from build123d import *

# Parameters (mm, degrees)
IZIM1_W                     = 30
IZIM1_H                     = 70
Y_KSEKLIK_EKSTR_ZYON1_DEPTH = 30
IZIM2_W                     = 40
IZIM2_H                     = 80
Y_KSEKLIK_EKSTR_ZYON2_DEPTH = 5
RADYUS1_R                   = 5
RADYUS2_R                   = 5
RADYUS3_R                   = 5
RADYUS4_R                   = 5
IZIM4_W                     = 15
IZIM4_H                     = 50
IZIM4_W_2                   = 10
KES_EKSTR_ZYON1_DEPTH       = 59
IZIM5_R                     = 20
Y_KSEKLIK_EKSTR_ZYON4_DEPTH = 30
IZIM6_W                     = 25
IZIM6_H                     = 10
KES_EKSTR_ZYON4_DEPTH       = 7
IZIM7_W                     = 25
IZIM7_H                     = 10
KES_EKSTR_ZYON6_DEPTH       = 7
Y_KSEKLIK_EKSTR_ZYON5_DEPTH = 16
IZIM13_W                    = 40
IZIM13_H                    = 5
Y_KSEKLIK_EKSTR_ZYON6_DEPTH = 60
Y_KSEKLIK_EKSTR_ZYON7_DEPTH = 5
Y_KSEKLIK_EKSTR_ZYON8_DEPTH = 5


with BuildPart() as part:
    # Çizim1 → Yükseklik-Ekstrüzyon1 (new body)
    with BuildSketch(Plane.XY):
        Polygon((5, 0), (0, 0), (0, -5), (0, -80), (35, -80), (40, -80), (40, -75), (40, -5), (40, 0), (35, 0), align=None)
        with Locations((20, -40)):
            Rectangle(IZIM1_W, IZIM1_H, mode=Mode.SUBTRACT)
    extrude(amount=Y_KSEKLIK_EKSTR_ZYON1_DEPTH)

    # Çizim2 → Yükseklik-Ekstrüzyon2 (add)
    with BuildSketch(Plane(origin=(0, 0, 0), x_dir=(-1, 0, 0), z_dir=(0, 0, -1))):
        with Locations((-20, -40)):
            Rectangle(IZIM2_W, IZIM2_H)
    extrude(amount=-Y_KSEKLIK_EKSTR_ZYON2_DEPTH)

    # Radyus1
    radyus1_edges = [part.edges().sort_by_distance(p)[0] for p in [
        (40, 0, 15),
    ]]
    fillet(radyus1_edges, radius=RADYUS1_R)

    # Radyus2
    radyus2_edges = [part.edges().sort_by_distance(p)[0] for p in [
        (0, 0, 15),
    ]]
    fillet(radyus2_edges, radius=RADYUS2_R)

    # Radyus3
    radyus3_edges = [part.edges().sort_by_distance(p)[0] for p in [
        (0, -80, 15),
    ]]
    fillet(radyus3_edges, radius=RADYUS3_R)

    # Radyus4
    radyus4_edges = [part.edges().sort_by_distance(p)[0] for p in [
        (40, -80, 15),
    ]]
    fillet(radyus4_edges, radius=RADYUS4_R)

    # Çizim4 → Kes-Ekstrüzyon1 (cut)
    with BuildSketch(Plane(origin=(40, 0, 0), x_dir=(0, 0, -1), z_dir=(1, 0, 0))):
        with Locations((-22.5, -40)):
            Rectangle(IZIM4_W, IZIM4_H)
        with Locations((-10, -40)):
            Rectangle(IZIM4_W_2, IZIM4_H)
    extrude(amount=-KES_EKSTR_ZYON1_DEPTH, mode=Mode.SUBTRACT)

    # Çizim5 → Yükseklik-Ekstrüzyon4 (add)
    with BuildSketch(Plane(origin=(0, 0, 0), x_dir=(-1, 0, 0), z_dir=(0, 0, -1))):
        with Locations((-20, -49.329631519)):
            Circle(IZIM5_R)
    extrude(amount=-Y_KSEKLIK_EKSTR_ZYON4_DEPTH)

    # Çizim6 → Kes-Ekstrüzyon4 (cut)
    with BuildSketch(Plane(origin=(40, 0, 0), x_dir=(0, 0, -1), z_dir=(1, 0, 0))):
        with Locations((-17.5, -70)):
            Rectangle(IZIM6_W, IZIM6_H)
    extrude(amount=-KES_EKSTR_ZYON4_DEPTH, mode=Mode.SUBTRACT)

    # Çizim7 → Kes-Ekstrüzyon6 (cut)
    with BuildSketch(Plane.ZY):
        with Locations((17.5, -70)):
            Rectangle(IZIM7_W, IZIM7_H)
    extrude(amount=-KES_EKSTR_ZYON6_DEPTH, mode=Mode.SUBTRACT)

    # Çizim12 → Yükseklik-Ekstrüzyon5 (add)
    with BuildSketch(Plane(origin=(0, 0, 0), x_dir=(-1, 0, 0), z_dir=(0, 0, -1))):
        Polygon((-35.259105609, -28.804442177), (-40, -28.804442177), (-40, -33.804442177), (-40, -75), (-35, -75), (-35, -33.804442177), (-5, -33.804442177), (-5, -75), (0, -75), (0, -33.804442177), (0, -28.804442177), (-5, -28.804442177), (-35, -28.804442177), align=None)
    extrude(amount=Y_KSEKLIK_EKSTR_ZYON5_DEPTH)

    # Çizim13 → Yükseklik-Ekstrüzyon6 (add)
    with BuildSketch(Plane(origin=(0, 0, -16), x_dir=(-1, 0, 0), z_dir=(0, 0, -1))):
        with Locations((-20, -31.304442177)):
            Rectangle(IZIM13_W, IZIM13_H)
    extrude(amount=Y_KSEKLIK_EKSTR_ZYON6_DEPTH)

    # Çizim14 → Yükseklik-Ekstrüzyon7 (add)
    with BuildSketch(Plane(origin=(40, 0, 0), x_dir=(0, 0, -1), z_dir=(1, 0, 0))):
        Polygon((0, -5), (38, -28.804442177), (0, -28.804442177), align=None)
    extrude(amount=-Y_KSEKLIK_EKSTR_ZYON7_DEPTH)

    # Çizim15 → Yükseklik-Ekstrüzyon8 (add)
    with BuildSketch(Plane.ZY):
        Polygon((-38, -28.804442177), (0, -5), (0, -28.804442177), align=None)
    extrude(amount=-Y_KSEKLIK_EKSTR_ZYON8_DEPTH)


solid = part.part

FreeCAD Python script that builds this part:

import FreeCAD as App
import Part
import Sketcher
Q = App.Units.Quantity


def edges_at(feature, points):
    """Names of the edges that pass closest to the given points."""
    edges = feature.Shape.Edges
    near = lambda p: min(range(len(edges)), key=lambda i: edges[i].distToShape(Part.Vertex(*p))[0])
    return sorted({f"Edge{near(p) + 1}" for p in points})


def add_polygon(sketch, points):
    """Adds a closed chain of lines whose ends are joined by coincident constraints."""
    first, n = sketch.GeometryCount, len(points)
    for a, b in zip(points, points[1:] + points[:1]):
        sketch.addGeometry(Part.LineSegment(App.Vector(*a, 0), App.Vector(*b, 0)), False)
    for i in range(n):
        sketch.addConstraint(Sketcher.Constraint("Coincident", first + i, 2, first + (i + 1) % n, 1))

doc = App.newDocument("Part")
body = doc.addObject("PartDesign::Body", "Body")

# Sketch on XY plane
sketch1 = doc.addObject("Sketcher::SketchObject", "Sketch")
body.addObject(sketch1)
sketch1.AttachmentSupport = (doc.XY_Plane, [""])
sketch1.MapMode = "FlatFace"
add_polygon(sketch1, [(0, 0), (0, -80), (40, -80), (40, 0)])  # lines 0-3
add_polygon(sketch1, [(35, -75), (5, -75), (5, -5), (35, -5)])  # lines 4-7
sketch1.addConstraint(Sketcher.Constraint("Vertical", 0))
sketch1.addConstraint(Sketcher.Constraint("Horizontal", 1))
sketch1.addConstraint(Sketcher.Constraint("Vertical", 2))
sketch1.addConstraint(Sketcher.Constraint("Horizontal", 3))
sketch1.addConstraint(Sketcher.Constraint("Horizontal", 4))
sketch1.addConstraint(Sketcher.Constraint("Vertical", 5))
sketch1.addConstraint(Sketcher.Constraint("Horizontal", 6))
sketch1.addConstraint(Sketcher.Constraint("Vertical", 7))
sketch1.addConstraint(Sketcher.Constraint("Coincident", 3, 2, -1, 1))
sketch1.addConstraint(Sketcher.Constraint("DistanceX", 1, 1, 1, 2, Q("40 mm")))
sketch1.addConstraint(Sketcher.Constraint("DistanceX", 4, 2, 4, 1, Q("30 mm")))
sketch1.addConstraint(Sketcher.Constraint("DistanceY", 0, 2, 0, 1, Q("80 mm")))
sketch1.addConstraint(Sketcher.Constraint("DistanceY", 5, 1, 5, 2, Q("70 mm")))
sketch1.addConstraint(Sketcher.Constraint("DistanceX", -1, 1, 4, 2, Q("5 mm")))
sketch1.addConstraint(Sketcher.Constraint("DistanceY", 4, 2, -1, 1, Q("75 mm")))
pad1 = doc.addObject("PartDesign::Pad", "Pad")
body.addObject(pad1)
pad1.Profile = sketch1
pad1.Length = 30

# Sketch on XY plane
sketch2 = doc.addObject("Sketcher::SketchObject", "Sketch001")
body.addObject(sketch2)
sketch2.AttachmentSupport = (doc.XY_Plane, [""])
sketch2.MapMode = "FlatFace"
add_polygon(sketch2, [(40, 0), (40, -80), (0, -80), (0, 0)])  # lines 0-3
sketch2.addConstraint(Sketcher.Constraint("Vertical", 0))
sketch2.addConstraint(Sketcher.Constraint("Horizontal", 1))
sketch2.addConstraint(Sketcher.Constraint("Vertical", 2))
sketch2.addConstraint(Sketcher.Constraint("Horizontal", 3))
sketch2.addConstraint(Sketcher.Constraint("Coincident", 2, 2, -1, 1))
sketch2.addConstraint(Sketcher.Constraint("DistanceX", 1, 2, 1, 1, Q("40 mm")))
sketch2.addConstraint(Sketcher.Constraint("DistanceY", 0, 2, 0, 1, Q("80 mm")))
pad2 = doc.addObject("PartDesign::Pad", "Pad001")
body.addObject(pad2)
pad2.Profile = sketch2
pad2.Length = 5
doc.recompute()

fillet = doc.addObject("PartDesign::Fillet", "Fillet")
body.addObject(fillet)
fillet.Base = (pad2, edges_at(pad2, [(40, 0, 15)]))
fillet.Radius = 5
doc.recompute()

fillet2 = doc.addObject("PartDesign::Fillet", "Fillet001")
body.addObject(fillet2)
fillet2.Base = (fillet, edges_at(fillet, [(0, 0, 15)]))
fillet2.Radius = 5
doc.recompute()

fillet3 = doc.addObject("PartDesign::Fillet", "Fillet002")
body.addObject(fillet3)
fillet3.Base = (fillet2, edges_at(fillet2, [(0, -80, 15)]))
fillet3.Radius = 5
doc.recompute()

fillet4 = doc.addObject("PartDesign::Fillet", "Fillet003")
body.addObject(fillet4)
fillet4.Base = (fillet3, edges_at(fillet3, [(40, -80, 15)]))
fillet4.Radius = 5

# Sketch on YZ plane
sketch3 = doc.addObject("Sketcher::SketchObject", "Sketch002")
body.addObject(sketch3)
sketch3.AttachmentSupport = (doc.YZ_Plane, [""])
sketch3.MapMode = "FlatFace"
sketch3.AttachmentOffset = App.Placement(App.Vector(0, 0, 40), App.Rotation())
add_polygon(sketch3, [(-15, 30), (-65, 30), (-65, 5), (-15, 5)])  # lines 0-3
sketch3.addConstraint(Sketcher.Constraint("Horizontal", 0))
sketch3.addConstraint(Sketcher.Constraint("Vertical", 1))
sketch3.addConstraint(Sketcher.Constraint("Horizontal", 2))
sketch3.addConstraint(Sketcher.Constraint("Vertical", 3))
sketch3.addConstraint(Sketcher.Constraint("DistanceX", 0, 2, 0, 1, Q("50 mm")))
sketch3.addConstraint(Sketcher.Constraint("DistanceY", 1, 2, 1, 1, Q("25 mm")))
sketch3.addConstraint(Sketcher.Constraint("DistanceX", 0, 2, -1, 1, Q("65 mm")))
sketch3.addConstraint(Sketcher.Constraint("DistanceY", -1, 1, 0, 2, Q("30 mm")))
pocket1 = doc.addObject("PartDesign::Pocket", "Pocket")
body.addObject(pocket1)
pocket1.Profile = sketch3
pocket1.Length = 59

# Sketch on XY plane
sketch4 = doc.addObject("Sketcher::SketchObject", "Sketch003")
body.addObject(sketch4)
sketch4.AttachmentSupport = (doc.XY_Plane, [""])
sketch4.MapMode = "FlatFace"
sketch4.addGeometry(Part.Circle(App.Vector(20, -49, 0), App.Vector(0, 0, 1), 20), False)
sketch4.addConstraint(Sketcher.Constraint("Diameter", 0, Q("40 mm")))
sketch4.addConstraint(Sketcher.Constraint("DistanceX", -1, 1, 0, 3, Q("20 mm")))
sketch4.addConstraint(Sketcher.Constraint("DistanceY", 0, 3, -1, 1, Q("49.329632 mm")))
pad3 = doc.addObject("PartDesign::Pad", "Pad002")
body.addObject(pad3)
pad3.Profile = sketch4
pad3.Length = 30

# Sketch on YZ plane
sketch5 = doc.addObject("Sketcher::SketchObject", "Sketch004")
body.addObject(sketch5)
sketch5.AttachmentSupport = (doc.YZ_Plane, [""])
sketch5.MapMode = "FlatFace"
sketch5.AttachmentOffset = App.Placement(App.Vector(0, 0, 40), App.Rotation())
add_polygon(sketch5, [(-65, 30), (-75, 30), (-75, 5), (-65, 5)])  # lines 0-3
sketch5.addConstraint(Sketcher.Constraint("Horizontal", 0))
sketch5.addConstraint(Sketcher.Constraint("Vertical", 1))
sketch5.addConstraint(Sketcher.Constraint("Horizontal", 2))
sketch5.addConstraint(Sketcher.Constraint("Vertical", 3))
sketch5.addConstraint(Sketcher.Constraint("DistanceX", 0, 2, 0, 1, Q("10 mm")))
sketch5.addConstraint(Sketcher.Constraint("DistanceY", 1, 2, 1, 1, Q("25 mm")))
sketch5.addConstraint(Sketcher.Constraint("DistanceX", 0, 2, -1, 1, Q("75 mm")))
sketch5.addConstraint(Sketcher.Constraint("DistanceY", -1, 1, 0, 2, Q("30 mm")))
pocket2 = doc.addObject("PartDesign::Pocket", "Pocket001")
body.addObject(pocket2)
pocket2.Profile = sketch5
pocket2.Length = 7

# Sketch on YZ plane
sketch6 = doc.addObject("Sketcher::SketchObject", "Sketch005")
body.addObject(sketch6)
sketch6.AttachmentSupport = (doc.YZ_Plane, [""])
sketch6.MapMode = "FlatFace"
add_polygon(sketch6, [(-65, 5), (-75, 5), (-75, 30), (-65, 30)])  # lines 0-3
sketch6.addConstraint(Sketcher.Constraint("Horizontal", 0))
sketch6.addConstraint(Sketcher.Constraint("Vertical", 1))
sketch6.addConstraint(Sketcher.Constraint("Horizontal", 2))
sketch6.addConstraint(Sketcher.Constraint("Vertical", 3))
sketch6.addConstraint(Sketcher.Constraint("DistanceX", 0, 2, 0, 1, Q("10 mm")))
sketch6.addConstraint(Sketcher.Constraint("DistanceY", 1, 1, 1, 2, Q("25 mm")))
sketch6.addConstraint(Sketcher.Constraint("DistanceX", 0, 2, -1, 1, Q("75 mm")))
sketch6.addConstraint(Sketcher.Constraint("DistanceY", -1, 1, 0, 2, Q("5 mm")))
pocket3 = doc.addObject("PartDesign::Pocket", "Pocket002")
body.addObject(pocket3)
pocket3.Profile = sketch6
pocket3.Length = 7
pocket3.Reversed = True

# Sketch on XY plane
sketch7 = doc.addObject("Sketcher::SketchObject", "Sketch006")
body.addObject(sketch7)
sketch7.AttachmentSupport = (doc.XY_Plane, [""])
sketch7.MapMode = "FlatFace"
add_polygon(sketch7, [(40, -29), (40, -75), (35, -75), (35, -34), (5, -34), (5, -75), (0, -75), (0, -29)])  # lines 0-7
sketch7.addConstraint(Sketcher.Constraint("Vertical", 0))
sketch7.addConstraint(Sketcher.Constraint("Horizontal", 1))
sketch7.addConstraint(Sketcher.Constraint("Vertical", 2))
sketch7.addConstraint(Sketcher.Constraint("Horizontal", 3))
sketch7.addConstraint(Sketcher.Constraint("Vertical", 4))
sketch7.addConstraint(Sketcher.Constraint("Horizontal", 5))
sketch7.addConstraint(Sketcher.Constraint("Vertical", 6))
sketch7.addConstraint(Sketcher.Constraint("Horizontal", 7))
sketch7.addConstraint(Sketcher.Constraint("PointOnObject", 5, 2, -2))
sketch7.addConstraint(Sketcher.Constraint("Horizontal", 1, 2, 4, 2))
sketch7.addConstraint(Sketcher.Constraint("Equal", 1, 5))
sketch7.addConstraint(Sketcher.Constraint("DistanceX", 1, 2, 1, 1, Q("5 mm")))
sketch7.addConstraint(Sketcher.Constraint("DistanceX", 3, 2, 3, 1, Q("30 mm")))
sketch7.addConstraint(Sketcher.Constraint("DistanceY", 0, 2, -1, 1, Q("75 mm")))
sketch7.addConstraint(Sketcher.Constraint("DistanceY", 3, 2, 6, 2, Q("5 mm")))
sketch7.addConstraint(Sketcher.Constraint("DistanceY", 0, 2, 0, 1, Q("46.195558 mm")))
pad4 = doc.addObject("PartDesign::Pad", "Pad003")
body.addObject(pad4)
pad4.Profile = sketch7
pad4.Length = 16
pad4.Reversed = True

# Sketch on XY plane
sketch8 = doc.addObject("Sketcher::SketchObject", "Sketch007")
body.addObject(sketch8)
sketch8.AttachmentSupport = (doc.XY_Plane, [""])
sketch8.MapMode = "FlatFace"
sketch8.AttachmentOffset = App.Placement(App.Vector(0, 0, -16), App.Rotation())
add_polygon(sketch8, [(40, -29), (40, -34), (0, -34), (0, -29)])  # lines 0-3
sketch8.addConstraint(Sketcher.Constraint("Vertical", 0))
sketch8.addConstraint(Sketcher.Constraint("Horizontal", 1))
sketch8.addConstraint(Sketcher.Constraint("Vertical", 2))
sketch8.addConstraint(Sketcher.Constraint("Horizontal", 3))
sketch8.addConstraint(Sketcher.Constraint("PointOnObject", 1, 2, -2))
sketch8.addConstraint(Sketcher.Constraint("DistanceX", 1, 2, 1, 1, Q("40 mm")))
sketch8.addConstraint(Sketcher.Constraint("DistanceY", 0, 2, 0, 1, Q("5 mm")))
sketch8.addConstraint(Sketcher.Constraint("DistanceY", 0, 2, -1, 1, Q("33.804442 mm")))
pad5 = doc.addObject("PartDesign::Pad", "Pad004")
body.addObject(pad5)
pad5.Profile = sketch8
pad5.Length = 60
pad5.Reversed = True

# Sketch on YZ plane
sketch9 = doc.addObject("Sketcher::SketchObject", "Sketch008")
body.addObject(sketch9)
sketch9.AttachmentSupport = (doc.YZ_Plane, [""])
sketch9.MapMode = "FlatFace"
sketch9.AttachmentOffset = App.Placement(App.Vector(0, 0, 40), App.Rotation())
add_polygon(sketch9, [(-29, -38), (-5, 0), (-29, 0)])  # lines 0-2
sketch9.addConstraint(Sketcher.Constraint("Horizontal", 1))
sketch9.addConstraint(Sketcher.Constraint("Vertical", 2))
sketch9.addConstraint(Sketcher.Constraint("PointOnObject", 0, 2, -1))
sketch9.addConstraint(Sketcher.Constraint("DistanceY", 2, 2, 2, 1, Q("38 mm")))
sketch9.addConstraint(Sketcher.Constraint("DistanceX", 0, 2, -1, 1, Q("5 mm")))
sketch9.addConstraint(Sketcher.Constraint("Distance", 0, Q("44.840288 mm")))
pad6 = doc.addObject("PartDesign::Pad", "Pad005")
body.addObject(pad6)
pad6.Profile = sketch9
pad6.Length = 5
pad6.Reversed = True

# Sketch on YZ plane
sketch10 = doc.addObject("Sketcher::SketchObject", "Sketch009")
body.addObject(sketch10)
sketch10.AttachmentSupport = (doc.YZ_Plane, [""])
sketch10.MapMode = "FlatFace"
add_polygon(sketch10, [(-5, 0), (-29, -38), (-29, 0)])  # lines 0-2
sketch10.addConstraint(Sketcher.Constraint("Vertical", 1))
sketch10.addConstraint(Sketcher.Constraint("Horizontal", 2))
sketch10.addConstraint(Sketcher.Constraint("PointOnObject", 1, 2, -1))
sketch10.addConstraint(Sketcher.Constraint("DistanceY", 1, 1, 1, 2, Q("38 mm")))
sketch10.addConstraint(Sketcher.Constraint("DistanceX", 2, 2, -1, 1, Q("5 mm")))
sketch10.addConstraint(Sketcher.Constraint("Distance", 0, Q("44.840288 mm")))
pad7 = doc.addObject("PartDesign::Pad", "Pad006")
body.addObject(pad7)
pad7.Profile = sketch10
pad7.Length = 5

doc.recompute()
